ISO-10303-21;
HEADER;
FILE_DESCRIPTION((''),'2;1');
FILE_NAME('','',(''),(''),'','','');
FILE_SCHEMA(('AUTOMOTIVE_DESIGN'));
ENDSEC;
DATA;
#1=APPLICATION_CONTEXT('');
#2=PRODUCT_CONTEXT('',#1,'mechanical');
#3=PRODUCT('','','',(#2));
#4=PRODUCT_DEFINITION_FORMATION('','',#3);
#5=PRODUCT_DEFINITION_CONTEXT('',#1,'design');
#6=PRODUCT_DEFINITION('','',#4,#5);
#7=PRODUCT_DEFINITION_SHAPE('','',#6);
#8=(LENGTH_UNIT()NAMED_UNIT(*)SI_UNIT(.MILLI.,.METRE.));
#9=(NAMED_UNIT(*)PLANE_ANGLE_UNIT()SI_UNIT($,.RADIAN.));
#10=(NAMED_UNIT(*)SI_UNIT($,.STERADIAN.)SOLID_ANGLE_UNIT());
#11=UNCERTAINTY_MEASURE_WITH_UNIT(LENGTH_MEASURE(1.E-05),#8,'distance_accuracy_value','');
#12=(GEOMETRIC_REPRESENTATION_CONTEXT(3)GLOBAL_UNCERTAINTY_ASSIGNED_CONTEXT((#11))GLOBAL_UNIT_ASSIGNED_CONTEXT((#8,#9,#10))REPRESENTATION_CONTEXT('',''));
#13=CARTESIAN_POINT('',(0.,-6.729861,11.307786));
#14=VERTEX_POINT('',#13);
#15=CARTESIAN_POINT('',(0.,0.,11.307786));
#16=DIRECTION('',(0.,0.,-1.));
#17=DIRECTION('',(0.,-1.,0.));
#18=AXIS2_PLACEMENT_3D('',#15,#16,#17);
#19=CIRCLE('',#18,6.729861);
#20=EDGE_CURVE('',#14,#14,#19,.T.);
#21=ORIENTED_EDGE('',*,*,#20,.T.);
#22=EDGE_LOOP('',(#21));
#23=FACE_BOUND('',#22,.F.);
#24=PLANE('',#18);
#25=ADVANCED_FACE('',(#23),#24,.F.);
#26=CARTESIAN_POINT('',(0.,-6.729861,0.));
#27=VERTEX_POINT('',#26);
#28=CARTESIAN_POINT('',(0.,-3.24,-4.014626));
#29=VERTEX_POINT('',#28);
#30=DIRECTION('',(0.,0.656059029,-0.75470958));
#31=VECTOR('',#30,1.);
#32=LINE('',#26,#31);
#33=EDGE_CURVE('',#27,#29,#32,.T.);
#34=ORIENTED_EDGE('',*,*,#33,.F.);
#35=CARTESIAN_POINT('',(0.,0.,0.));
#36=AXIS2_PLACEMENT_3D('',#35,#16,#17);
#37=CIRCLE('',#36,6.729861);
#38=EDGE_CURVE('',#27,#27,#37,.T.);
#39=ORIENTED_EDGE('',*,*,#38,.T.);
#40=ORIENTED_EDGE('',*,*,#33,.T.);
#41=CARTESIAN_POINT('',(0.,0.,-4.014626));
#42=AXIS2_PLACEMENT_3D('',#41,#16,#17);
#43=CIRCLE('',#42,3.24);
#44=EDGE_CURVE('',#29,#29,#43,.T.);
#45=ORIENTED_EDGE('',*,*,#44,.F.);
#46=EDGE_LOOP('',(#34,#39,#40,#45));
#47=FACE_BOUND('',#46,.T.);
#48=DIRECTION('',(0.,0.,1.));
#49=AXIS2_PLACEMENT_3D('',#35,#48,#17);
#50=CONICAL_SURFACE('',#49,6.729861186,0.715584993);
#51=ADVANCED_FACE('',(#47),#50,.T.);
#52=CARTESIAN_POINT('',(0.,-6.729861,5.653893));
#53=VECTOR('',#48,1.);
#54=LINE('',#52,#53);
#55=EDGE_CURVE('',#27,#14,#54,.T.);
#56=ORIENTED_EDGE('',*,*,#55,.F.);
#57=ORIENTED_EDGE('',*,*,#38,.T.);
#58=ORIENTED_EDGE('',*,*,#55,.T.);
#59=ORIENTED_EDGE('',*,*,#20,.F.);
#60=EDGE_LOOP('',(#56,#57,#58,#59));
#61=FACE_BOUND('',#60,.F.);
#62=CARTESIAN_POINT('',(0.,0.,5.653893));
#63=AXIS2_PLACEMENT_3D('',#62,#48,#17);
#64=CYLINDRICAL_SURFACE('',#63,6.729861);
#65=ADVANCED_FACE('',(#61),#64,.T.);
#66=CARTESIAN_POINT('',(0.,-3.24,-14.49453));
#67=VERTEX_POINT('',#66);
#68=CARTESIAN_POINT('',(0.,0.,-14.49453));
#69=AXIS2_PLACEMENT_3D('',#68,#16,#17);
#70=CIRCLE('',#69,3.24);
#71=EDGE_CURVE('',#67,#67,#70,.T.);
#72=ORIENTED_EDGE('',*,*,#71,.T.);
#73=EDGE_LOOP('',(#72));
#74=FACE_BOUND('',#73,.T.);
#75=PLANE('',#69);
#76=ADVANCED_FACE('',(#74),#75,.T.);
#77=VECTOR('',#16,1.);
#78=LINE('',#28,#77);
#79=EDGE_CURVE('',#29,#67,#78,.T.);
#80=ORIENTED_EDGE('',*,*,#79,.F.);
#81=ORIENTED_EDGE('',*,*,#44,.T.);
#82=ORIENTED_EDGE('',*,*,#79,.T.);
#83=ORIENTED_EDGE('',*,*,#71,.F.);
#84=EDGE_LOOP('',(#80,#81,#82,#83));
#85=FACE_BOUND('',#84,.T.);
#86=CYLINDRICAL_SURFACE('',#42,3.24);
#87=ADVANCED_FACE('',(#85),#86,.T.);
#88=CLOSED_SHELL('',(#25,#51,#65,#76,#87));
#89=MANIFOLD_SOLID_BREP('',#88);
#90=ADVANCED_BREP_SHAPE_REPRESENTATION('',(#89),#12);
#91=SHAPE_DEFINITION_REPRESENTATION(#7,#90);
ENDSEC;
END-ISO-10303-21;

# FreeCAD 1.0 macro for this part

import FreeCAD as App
import Part
import Sketcher
Q = App.Units.Quantity

doc = App.newDocument("Part")
body = doc.addObject("PartDesign::Body", "Body")

# Sketch on YZ plane
sketch1 = body.newObject("Sketcher::SketchObject", "Sketch")
sketch1.AttachmentSupport = (doc.getObject("YZ_Plane"), [""])
sketch1.MapMode = "FlatFace"
sketch1.addGeometry(Part.LineSegment(App.Vector(-6.729861, 11.307786, 0), App.Vector(-6.729861, 0, 0)), False)
sketch1.addGeometry(Part.LineSegment(App.Vector(-6.729861, 0, 0), App.Vector(-3.24, -4.014626, 0)), False)
sketch1.addGeometry(Part.LineSegment(App.Vector(-3.24, -4.014626, 0), App.Vector(-3.24, -14.49453, 0)), False)
sketch1.addGeometry(Part.LineSegment(App.Vector(-3.24, -14.49453, 0), App.Vector(0, -14.49453, 0)), False)
sketch1.addGeometry(Part.LineSegment(App.Vector(0, -14.49453, 0), App.Vector(0, 11.307786, 0)), False)
sketch1.addGeometry(Part.LineSegment(App.Vector(0, 11.307786, 0), App.Vector(-6.729861, 11.307786, 0)), False)
sketch1.addConstraint(Sketcher.Constraint("Coincident", 0, 2, 1, 1))
sketch1.addConstraint(Sketcher.Constraint("Coincident", 1, 2, 2, 1))
sketch1.addConstraint(Sketcher.Constraint("Coincident", 2, 2, 3, 1))
sketch1.addConstraint(Sketcher.Constraint("Coincident", 3, 2, 4, 1))
sketch1.addConstraint(Sketcher.Constraint("Coincident", 4, 2, 5, 1))
sketch1.addConstraint(Sketcher.Constraint("Coincident", 5, 2, 0, 1))
sketch1.addConstraint(Sketcher.Constraint("Vertical", 0))
sketch1.addConstraint(Sketcher.Constraint("Vertical", 2))
sketch1.addConstraint(Sketcher.Constraint("Horizontal", 3))
sketch1.addConstraint(Sketcher.Constraint("Vertical", 4))
sketch1.addConstraint(Sketcher.Constraint("Horizontal", 5))
sketch1.addConstraint(Sketcher.Constraint("PointOnObject", 0, 2, -1))
sketch1.addConstraint(Sketcher.Constraint("PointOnObject", 3, 2, -2))
sketch1.addConstraint(Sketcher.Constraint("Angle", 1, Q("-49 deg")))
sketch1.addConstraint(Sketcher.Constraint("DistanceX", 3, 1, 3, 2, 3.24))
sketch1.addConstraint(Sketcher.Constraint("DistanceX", 5, 2, 5, 1, 6.729861))
sketch1.addConstraint(Sketcher.Constraint("DistanceY", 0, 2, 0, 1, 11.307786))
sketch1.addConstraint(Sketcher.Constraint("DistanceY", 2, 2, 2, 1, 10.479904))
revolution = body.newObject("PartDesign::Revolution", "Revolution")
revolution.Profile = sketch1
revolution.ReferenceAxis = (sketch1, ["V_Axis"])
revolution.Angle = 360

doc.recompute()
